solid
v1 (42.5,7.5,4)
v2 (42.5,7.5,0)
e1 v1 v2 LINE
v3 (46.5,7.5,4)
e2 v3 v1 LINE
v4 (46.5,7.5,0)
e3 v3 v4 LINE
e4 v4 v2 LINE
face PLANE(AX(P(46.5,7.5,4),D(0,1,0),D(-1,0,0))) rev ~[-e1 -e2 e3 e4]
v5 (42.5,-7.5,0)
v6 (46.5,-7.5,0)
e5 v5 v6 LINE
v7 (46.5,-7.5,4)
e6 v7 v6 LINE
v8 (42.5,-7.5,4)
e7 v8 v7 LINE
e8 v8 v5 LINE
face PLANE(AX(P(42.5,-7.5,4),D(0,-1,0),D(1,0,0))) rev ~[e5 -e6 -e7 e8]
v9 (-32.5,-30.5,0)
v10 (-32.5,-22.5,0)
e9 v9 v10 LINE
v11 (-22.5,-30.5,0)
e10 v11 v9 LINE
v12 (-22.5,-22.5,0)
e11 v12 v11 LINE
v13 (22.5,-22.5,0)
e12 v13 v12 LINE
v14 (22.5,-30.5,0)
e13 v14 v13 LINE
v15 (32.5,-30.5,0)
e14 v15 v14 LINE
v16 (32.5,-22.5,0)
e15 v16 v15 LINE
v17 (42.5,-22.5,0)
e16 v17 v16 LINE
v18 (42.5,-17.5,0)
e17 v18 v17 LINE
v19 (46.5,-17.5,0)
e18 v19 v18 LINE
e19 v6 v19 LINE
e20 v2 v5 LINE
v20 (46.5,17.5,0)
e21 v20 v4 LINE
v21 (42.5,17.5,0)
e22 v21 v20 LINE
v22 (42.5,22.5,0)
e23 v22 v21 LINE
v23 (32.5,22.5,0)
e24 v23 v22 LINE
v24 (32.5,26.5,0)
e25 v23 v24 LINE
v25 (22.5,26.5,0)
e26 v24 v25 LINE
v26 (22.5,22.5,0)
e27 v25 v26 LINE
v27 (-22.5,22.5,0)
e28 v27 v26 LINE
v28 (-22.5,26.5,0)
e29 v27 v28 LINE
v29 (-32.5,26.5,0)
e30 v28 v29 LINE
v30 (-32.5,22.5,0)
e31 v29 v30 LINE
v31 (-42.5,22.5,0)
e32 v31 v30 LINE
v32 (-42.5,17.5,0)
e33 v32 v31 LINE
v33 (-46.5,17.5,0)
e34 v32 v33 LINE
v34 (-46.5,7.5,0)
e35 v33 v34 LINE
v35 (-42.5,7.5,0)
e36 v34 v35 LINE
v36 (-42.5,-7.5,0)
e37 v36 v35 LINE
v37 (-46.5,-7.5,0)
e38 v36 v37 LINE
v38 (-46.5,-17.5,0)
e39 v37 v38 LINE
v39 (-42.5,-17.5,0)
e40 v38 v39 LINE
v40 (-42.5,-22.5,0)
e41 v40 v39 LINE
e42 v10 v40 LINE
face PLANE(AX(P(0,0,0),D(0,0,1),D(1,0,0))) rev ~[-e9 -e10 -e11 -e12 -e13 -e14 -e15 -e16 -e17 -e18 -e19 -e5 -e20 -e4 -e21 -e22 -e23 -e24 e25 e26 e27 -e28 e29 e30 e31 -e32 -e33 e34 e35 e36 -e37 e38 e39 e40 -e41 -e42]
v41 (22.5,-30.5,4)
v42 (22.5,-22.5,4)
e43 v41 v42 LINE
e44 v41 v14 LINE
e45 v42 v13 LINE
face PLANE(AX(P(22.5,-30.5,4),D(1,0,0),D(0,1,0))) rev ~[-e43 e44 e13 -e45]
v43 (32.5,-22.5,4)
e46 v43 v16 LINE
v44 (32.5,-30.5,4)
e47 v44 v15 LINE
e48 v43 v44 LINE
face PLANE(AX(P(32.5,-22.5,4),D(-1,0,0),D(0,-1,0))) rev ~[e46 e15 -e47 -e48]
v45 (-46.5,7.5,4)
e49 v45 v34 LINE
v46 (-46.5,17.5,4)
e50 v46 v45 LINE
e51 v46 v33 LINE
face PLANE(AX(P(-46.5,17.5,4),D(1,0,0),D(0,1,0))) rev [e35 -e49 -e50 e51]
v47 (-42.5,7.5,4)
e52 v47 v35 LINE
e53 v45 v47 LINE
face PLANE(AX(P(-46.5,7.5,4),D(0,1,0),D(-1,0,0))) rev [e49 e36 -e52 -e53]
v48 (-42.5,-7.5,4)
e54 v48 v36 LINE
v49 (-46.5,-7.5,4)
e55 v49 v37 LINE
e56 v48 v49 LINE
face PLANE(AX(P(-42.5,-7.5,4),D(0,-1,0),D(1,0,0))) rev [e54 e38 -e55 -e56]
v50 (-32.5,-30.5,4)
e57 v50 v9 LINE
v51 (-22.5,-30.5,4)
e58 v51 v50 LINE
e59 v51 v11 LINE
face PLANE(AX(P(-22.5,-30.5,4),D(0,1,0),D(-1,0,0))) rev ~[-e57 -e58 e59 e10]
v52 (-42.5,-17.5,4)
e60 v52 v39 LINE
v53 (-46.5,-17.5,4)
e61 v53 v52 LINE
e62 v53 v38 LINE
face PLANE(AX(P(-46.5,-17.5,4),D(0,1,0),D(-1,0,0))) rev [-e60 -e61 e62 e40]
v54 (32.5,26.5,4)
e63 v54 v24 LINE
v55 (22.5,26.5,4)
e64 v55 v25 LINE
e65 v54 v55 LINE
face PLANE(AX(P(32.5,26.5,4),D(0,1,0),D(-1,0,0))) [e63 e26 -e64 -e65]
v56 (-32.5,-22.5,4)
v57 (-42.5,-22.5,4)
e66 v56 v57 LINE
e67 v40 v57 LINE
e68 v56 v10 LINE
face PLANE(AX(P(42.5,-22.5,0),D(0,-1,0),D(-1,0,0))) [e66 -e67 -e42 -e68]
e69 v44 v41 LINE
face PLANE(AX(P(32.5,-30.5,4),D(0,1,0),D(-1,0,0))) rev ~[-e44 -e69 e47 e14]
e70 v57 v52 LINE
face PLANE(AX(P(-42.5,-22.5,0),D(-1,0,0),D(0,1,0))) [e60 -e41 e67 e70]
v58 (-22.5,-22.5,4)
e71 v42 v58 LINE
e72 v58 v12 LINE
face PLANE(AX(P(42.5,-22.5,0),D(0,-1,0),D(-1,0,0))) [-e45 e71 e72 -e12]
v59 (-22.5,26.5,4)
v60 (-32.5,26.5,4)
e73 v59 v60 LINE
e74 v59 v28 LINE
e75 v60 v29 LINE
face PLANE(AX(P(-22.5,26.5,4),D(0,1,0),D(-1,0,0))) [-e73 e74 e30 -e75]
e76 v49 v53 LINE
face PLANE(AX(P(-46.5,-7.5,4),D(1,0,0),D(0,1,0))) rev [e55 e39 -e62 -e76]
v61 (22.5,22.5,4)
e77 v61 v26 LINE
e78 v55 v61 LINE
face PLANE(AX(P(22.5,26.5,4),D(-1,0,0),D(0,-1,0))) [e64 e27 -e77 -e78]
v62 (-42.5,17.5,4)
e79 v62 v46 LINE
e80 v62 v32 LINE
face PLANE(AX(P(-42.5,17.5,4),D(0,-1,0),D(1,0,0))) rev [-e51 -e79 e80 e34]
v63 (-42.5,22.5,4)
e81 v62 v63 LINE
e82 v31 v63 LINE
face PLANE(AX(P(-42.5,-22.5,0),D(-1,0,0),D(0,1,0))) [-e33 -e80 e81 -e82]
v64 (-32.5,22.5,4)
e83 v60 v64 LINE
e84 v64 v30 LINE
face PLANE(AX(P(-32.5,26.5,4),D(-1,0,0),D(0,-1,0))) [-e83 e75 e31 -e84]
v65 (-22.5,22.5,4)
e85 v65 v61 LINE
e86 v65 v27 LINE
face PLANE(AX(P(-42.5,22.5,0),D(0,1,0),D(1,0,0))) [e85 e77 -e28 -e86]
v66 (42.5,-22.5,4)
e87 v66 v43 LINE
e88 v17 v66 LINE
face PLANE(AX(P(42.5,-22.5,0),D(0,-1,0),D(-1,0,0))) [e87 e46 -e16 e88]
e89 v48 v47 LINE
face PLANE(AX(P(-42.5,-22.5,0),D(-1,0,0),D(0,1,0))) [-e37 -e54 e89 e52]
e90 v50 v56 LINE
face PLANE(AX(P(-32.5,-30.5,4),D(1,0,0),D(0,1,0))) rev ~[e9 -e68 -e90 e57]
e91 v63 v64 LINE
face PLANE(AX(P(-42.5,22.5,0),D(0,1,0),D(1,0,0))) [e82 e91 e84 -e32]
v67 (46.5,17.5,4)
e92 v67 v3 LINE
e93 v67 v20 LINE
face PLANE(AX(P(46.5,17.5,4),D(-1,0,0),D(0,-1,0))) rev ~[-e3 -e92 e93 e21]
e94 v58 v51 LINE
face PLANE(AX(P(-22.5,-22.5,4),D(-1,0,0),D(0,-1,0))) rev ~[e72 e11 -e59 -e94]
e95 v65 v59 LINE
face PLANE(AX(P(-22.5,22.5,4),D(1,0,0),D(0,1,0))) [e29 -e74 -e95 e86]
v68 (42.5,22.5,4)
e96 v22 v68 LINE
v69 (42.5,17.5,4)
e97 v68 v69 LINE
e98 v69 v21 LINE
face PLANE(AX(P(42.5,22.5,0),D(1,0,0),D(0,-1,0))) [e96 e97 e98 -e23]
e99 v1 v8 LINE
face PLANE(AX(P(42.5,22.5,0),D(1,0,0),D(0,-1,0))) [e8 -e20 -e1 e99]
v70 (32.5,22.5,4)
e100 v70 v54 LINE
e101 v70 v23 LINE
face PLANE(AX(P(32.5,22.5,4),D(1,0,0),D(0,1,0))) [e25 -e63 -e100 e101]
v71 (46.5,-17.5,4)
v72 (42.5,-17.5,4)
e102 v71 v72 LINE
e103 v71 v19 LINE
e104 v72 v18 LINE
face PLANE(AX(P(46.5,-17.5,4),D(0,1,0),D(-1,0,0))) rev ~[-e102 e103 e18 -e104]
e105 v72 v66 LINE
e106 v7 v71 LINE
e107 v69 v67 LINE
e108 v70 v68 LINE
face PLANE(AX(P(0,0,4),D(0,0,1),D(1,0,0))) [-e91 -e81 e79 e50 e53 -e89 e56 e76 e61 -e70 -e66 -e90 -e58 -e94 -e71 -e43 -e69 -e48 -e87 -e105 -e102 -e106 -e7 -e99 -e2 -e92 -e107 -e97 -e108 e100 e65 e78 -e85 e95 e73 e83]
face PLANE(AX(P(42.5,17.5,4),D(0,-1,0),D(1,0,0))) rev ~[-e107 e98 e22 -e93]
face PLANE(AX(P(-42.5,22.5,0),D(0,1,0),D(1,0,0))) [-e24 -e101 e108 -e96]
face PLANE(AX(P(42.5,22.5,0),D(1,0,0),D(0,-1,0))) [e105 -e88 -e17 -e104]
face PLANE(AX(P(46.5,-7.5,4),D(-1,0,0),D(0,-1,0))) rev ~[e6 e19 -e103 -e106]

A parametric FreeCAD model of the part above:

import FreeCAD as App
import Part
import Sketcher

V = App.Vector


def add_polygon(sketch, points):
    """Adds a closed chain of lines whose ends are joined by coincident constraints."""
    first, n = sketch.GeometryCount, len(points)
    for a, b in zip(points, points[1:] + points[:1]):
        sketch.addGeometry(Part.LineSegment(App.Vector(*a, 0), App.Vector(*b, 0)), False)
    for i in range(n):
        sketch.addConstraint(Sketcher.Constraint("Coincident", first + i, 2, first + (i + 1) % n, 1))

doc = App.newDocument("Part")
body = doc.addObject("PartDesign::Body", "Body")

sketch1 = body.newObject("Sketcher::SketchObject", "Sketch")
sketch1.AttachmentSupport = (doc.getObject("XY_Plane"), [""])
sketch1.MapMode = "FlatFace"
add_polygon(sketch1, [(-42, -22), (42, -22), (42, 22), (-42, 22)])
sketch1.addConstraint([
    Sketcher.Constraint("Horizontal", 0),
    Sketcher.Constraint("Vertical", 1),
    Sketcher.Constraint("Horizontal", 2),
    Sketcher.Constraint("Vertical", 3),
    Sketcher.Constraint("Symmetric", 0, 2, 2, 2, -1, 1),
    Sketcher.Constraint("DistanceX", 0, 1, 0, 2, 85.0),
    Sketcher.Constraint("DistanceY", 1, 1, 1, 2, 45.0),
])
pad1 = body.newObject("PartDesign::Pad", "Pad")
pad1.Profile = sketch1
pad1.Length = 4

sketch2 = body.newObject("Sketcher::SketchObject", "Sketch001")
sketch2.AttachmentSupport = (doc.getObject("XY_Plane"), [""])
sketch2.MapMode = "FlatFace"
sketch2.AttachmentOffset = App.Placement(V(0, 0, 4), App.Rotation())
add_polygon(sketch2, [(42.5, -7.5), (42.5, -17.5), (46.5, -17.5), (46.5, -7.5)])
add_polygon(sketch2, [(46.5, 17.5), (42.5, 17.5), (42.5, 7.5), (46.5, 7.5)])
sketch2.addConstraint([
    Sketcher.Constraint("Vertical", 0),
    Sketcher.Constraint("Horizontal", 1),
    Sketcher.Constraint("Vertical", 2),
    Sketcher.Constraint("Horizontal", 3),
    Sketcher.Constraint("Horizontal", 4),
    Sketcher.Constraint("Vertical", 5),
    Sketcher.Constraint("Horizontal", 6),
    Sketcher.Constraint("Vertical", 7),
    Sketcher.Constraint("Symmetric", 0, 2, 4, 2, -1),
    Sketcher.Constraint("Symmetric", 2, 2, 6, 2, -1),
    Sketcher.Constraint("DistanceX", 1, 1, 1, 2, 4.0),
    Sketcher.Constraint("DistanceY", 0, 2, 0, 1, 10.0),
    Sketcher.Constraint("DistanceY", 3, 2, 4, 2, 25.0),
    Sketcher.Constraint("DistanceX", -1, 1, 0, 2, 42.5),
])
pad2 = body.newObject("PartDesign::Pad", "Pad001")
pad2.Profile = sketch2
pad2.Length = 4
pad2.Reversed = True
doc.recompute()

mirrored = body.newObject("PartDesign::Mirrored", "Mirrored")
mirrored.Originals = [pad2]
mirrored.MirrorPlane = (doc.getObject("YZ_Plane"), [""])
body.Tip = mirrored

sketch3 = body.newObject("Sketcher::SketchObject", "Sketch002")
sketch3.AttachmentSupport = (doc.getObject("XY_Plane"), [""])
sketch3.MapMode = "FlatFace"
sketch3.AttachmentOffset = App.Placement(V(0, 0, 4), App.Rotation())
add_polygon(sketch3, [(32, -22), (22, -22), (22, -30), (32, -30)])
add_polygon(sketch3, [(-22, -22), (-32, -22), (-32, -30), (-22, -30)])
sketch3.addConstraint([
    Sketcher.Constraint("Horizontal", 0),
    Sketcher.Constraint("Vertical", 1),
    Sketcher.Constraint("Horizontal", 2),
    Sketcher.Constraint("Vertical", 3),
    Sketcher.Constraint("Horizontal", 4),
    Sketcher.Constraint("Vertical", 5),
    Sketcher.Constraint("Horizontal", 6),
    Sketcher.Constraint("Vertical", 7),
    Sketcher.Constraint("Symmetric", 3, 2, 4, 2, -2),
    Sketcher.Constraint("Symmetric", 1, 2, 6, 2, -2),
    Sketcher.Constraint("DistanceX", 0, 2, 0, 1, 10.0),
    Sketcher.Constraint("DistanceY", 1, 2, 1, 1, 8.0),
    Sketcher.Constraint("DistanceX", 4, 2, 0, 2, 55.0),
    Sketcher.Constraint("DistanceY", 0, 2, -1, 1, 22.5),
])
pad3 = body.newObject("PartDesign::Pad", "Pad002")
pad3.Profile = sketch3
pad3.Length = 4
pad3.Reversed = True

sketch4 = body.newObject("Sketcher::SketchObject", "Sketch003")
sketch4.AttachmentSupport = (doc.getObject("XY_Plane"), [""])
sketch4.MapMode = "FlatFace"
sketch4.AttachmentOffset = App.Placement(V(0, 0, 4), App.Rotation())
add_polygon(sketch4, [(-32.5, 22.5), (-22.5, 22.5), (-22.5, 26.5), (-32.5, 26.5)])
add_polygon(sketch4, [(22.5, 22.5), (32.5, 22.5), (32.5, 26.5), (22.5, 26.5)])
sketch4.addConstraint([
    Sketcher.Constraint("Horizontal", 0),
    Sketcher.Constraint("Vertical", 1),
    Sketcher.Constraint("Horizontal", 2),
    Sketcher.Constraint("Vertical", 3),
    Sketcher.Constraint("Horizontal", 4),
    Sketcher.Constraint("Vertical", 5),
    Sketcher.Constraint("Horizontal", 6),
    Sketcher.Constraint("Vertical", 7),
    Sketcher.Constraint("Symmetric", 3, 2, 4, 2, -2),
    Sketcher.Constraint("Symmetric", 1, 2, 6, 2, -2),
    Sketcher.Constraint("DistanceX", 0, 1, 0, 2, 10.0),
    Sketcher.Constraint("DistanceY", 1, 1, 1, 2, 4.0),
    Sketcher.Constraint("DistanceX", 0, 2, 4, 2, 55.0),
    Sketcher.Constraint("DistanceY", -1, 1, 0, 2, 22.5),
])
pad4 = body.newObject("PartDesign::Pad", "Pad003")
pad4.Profile = sketch4
pad4.Length = 4
pad4.Reversed = True

doc.recompute()
